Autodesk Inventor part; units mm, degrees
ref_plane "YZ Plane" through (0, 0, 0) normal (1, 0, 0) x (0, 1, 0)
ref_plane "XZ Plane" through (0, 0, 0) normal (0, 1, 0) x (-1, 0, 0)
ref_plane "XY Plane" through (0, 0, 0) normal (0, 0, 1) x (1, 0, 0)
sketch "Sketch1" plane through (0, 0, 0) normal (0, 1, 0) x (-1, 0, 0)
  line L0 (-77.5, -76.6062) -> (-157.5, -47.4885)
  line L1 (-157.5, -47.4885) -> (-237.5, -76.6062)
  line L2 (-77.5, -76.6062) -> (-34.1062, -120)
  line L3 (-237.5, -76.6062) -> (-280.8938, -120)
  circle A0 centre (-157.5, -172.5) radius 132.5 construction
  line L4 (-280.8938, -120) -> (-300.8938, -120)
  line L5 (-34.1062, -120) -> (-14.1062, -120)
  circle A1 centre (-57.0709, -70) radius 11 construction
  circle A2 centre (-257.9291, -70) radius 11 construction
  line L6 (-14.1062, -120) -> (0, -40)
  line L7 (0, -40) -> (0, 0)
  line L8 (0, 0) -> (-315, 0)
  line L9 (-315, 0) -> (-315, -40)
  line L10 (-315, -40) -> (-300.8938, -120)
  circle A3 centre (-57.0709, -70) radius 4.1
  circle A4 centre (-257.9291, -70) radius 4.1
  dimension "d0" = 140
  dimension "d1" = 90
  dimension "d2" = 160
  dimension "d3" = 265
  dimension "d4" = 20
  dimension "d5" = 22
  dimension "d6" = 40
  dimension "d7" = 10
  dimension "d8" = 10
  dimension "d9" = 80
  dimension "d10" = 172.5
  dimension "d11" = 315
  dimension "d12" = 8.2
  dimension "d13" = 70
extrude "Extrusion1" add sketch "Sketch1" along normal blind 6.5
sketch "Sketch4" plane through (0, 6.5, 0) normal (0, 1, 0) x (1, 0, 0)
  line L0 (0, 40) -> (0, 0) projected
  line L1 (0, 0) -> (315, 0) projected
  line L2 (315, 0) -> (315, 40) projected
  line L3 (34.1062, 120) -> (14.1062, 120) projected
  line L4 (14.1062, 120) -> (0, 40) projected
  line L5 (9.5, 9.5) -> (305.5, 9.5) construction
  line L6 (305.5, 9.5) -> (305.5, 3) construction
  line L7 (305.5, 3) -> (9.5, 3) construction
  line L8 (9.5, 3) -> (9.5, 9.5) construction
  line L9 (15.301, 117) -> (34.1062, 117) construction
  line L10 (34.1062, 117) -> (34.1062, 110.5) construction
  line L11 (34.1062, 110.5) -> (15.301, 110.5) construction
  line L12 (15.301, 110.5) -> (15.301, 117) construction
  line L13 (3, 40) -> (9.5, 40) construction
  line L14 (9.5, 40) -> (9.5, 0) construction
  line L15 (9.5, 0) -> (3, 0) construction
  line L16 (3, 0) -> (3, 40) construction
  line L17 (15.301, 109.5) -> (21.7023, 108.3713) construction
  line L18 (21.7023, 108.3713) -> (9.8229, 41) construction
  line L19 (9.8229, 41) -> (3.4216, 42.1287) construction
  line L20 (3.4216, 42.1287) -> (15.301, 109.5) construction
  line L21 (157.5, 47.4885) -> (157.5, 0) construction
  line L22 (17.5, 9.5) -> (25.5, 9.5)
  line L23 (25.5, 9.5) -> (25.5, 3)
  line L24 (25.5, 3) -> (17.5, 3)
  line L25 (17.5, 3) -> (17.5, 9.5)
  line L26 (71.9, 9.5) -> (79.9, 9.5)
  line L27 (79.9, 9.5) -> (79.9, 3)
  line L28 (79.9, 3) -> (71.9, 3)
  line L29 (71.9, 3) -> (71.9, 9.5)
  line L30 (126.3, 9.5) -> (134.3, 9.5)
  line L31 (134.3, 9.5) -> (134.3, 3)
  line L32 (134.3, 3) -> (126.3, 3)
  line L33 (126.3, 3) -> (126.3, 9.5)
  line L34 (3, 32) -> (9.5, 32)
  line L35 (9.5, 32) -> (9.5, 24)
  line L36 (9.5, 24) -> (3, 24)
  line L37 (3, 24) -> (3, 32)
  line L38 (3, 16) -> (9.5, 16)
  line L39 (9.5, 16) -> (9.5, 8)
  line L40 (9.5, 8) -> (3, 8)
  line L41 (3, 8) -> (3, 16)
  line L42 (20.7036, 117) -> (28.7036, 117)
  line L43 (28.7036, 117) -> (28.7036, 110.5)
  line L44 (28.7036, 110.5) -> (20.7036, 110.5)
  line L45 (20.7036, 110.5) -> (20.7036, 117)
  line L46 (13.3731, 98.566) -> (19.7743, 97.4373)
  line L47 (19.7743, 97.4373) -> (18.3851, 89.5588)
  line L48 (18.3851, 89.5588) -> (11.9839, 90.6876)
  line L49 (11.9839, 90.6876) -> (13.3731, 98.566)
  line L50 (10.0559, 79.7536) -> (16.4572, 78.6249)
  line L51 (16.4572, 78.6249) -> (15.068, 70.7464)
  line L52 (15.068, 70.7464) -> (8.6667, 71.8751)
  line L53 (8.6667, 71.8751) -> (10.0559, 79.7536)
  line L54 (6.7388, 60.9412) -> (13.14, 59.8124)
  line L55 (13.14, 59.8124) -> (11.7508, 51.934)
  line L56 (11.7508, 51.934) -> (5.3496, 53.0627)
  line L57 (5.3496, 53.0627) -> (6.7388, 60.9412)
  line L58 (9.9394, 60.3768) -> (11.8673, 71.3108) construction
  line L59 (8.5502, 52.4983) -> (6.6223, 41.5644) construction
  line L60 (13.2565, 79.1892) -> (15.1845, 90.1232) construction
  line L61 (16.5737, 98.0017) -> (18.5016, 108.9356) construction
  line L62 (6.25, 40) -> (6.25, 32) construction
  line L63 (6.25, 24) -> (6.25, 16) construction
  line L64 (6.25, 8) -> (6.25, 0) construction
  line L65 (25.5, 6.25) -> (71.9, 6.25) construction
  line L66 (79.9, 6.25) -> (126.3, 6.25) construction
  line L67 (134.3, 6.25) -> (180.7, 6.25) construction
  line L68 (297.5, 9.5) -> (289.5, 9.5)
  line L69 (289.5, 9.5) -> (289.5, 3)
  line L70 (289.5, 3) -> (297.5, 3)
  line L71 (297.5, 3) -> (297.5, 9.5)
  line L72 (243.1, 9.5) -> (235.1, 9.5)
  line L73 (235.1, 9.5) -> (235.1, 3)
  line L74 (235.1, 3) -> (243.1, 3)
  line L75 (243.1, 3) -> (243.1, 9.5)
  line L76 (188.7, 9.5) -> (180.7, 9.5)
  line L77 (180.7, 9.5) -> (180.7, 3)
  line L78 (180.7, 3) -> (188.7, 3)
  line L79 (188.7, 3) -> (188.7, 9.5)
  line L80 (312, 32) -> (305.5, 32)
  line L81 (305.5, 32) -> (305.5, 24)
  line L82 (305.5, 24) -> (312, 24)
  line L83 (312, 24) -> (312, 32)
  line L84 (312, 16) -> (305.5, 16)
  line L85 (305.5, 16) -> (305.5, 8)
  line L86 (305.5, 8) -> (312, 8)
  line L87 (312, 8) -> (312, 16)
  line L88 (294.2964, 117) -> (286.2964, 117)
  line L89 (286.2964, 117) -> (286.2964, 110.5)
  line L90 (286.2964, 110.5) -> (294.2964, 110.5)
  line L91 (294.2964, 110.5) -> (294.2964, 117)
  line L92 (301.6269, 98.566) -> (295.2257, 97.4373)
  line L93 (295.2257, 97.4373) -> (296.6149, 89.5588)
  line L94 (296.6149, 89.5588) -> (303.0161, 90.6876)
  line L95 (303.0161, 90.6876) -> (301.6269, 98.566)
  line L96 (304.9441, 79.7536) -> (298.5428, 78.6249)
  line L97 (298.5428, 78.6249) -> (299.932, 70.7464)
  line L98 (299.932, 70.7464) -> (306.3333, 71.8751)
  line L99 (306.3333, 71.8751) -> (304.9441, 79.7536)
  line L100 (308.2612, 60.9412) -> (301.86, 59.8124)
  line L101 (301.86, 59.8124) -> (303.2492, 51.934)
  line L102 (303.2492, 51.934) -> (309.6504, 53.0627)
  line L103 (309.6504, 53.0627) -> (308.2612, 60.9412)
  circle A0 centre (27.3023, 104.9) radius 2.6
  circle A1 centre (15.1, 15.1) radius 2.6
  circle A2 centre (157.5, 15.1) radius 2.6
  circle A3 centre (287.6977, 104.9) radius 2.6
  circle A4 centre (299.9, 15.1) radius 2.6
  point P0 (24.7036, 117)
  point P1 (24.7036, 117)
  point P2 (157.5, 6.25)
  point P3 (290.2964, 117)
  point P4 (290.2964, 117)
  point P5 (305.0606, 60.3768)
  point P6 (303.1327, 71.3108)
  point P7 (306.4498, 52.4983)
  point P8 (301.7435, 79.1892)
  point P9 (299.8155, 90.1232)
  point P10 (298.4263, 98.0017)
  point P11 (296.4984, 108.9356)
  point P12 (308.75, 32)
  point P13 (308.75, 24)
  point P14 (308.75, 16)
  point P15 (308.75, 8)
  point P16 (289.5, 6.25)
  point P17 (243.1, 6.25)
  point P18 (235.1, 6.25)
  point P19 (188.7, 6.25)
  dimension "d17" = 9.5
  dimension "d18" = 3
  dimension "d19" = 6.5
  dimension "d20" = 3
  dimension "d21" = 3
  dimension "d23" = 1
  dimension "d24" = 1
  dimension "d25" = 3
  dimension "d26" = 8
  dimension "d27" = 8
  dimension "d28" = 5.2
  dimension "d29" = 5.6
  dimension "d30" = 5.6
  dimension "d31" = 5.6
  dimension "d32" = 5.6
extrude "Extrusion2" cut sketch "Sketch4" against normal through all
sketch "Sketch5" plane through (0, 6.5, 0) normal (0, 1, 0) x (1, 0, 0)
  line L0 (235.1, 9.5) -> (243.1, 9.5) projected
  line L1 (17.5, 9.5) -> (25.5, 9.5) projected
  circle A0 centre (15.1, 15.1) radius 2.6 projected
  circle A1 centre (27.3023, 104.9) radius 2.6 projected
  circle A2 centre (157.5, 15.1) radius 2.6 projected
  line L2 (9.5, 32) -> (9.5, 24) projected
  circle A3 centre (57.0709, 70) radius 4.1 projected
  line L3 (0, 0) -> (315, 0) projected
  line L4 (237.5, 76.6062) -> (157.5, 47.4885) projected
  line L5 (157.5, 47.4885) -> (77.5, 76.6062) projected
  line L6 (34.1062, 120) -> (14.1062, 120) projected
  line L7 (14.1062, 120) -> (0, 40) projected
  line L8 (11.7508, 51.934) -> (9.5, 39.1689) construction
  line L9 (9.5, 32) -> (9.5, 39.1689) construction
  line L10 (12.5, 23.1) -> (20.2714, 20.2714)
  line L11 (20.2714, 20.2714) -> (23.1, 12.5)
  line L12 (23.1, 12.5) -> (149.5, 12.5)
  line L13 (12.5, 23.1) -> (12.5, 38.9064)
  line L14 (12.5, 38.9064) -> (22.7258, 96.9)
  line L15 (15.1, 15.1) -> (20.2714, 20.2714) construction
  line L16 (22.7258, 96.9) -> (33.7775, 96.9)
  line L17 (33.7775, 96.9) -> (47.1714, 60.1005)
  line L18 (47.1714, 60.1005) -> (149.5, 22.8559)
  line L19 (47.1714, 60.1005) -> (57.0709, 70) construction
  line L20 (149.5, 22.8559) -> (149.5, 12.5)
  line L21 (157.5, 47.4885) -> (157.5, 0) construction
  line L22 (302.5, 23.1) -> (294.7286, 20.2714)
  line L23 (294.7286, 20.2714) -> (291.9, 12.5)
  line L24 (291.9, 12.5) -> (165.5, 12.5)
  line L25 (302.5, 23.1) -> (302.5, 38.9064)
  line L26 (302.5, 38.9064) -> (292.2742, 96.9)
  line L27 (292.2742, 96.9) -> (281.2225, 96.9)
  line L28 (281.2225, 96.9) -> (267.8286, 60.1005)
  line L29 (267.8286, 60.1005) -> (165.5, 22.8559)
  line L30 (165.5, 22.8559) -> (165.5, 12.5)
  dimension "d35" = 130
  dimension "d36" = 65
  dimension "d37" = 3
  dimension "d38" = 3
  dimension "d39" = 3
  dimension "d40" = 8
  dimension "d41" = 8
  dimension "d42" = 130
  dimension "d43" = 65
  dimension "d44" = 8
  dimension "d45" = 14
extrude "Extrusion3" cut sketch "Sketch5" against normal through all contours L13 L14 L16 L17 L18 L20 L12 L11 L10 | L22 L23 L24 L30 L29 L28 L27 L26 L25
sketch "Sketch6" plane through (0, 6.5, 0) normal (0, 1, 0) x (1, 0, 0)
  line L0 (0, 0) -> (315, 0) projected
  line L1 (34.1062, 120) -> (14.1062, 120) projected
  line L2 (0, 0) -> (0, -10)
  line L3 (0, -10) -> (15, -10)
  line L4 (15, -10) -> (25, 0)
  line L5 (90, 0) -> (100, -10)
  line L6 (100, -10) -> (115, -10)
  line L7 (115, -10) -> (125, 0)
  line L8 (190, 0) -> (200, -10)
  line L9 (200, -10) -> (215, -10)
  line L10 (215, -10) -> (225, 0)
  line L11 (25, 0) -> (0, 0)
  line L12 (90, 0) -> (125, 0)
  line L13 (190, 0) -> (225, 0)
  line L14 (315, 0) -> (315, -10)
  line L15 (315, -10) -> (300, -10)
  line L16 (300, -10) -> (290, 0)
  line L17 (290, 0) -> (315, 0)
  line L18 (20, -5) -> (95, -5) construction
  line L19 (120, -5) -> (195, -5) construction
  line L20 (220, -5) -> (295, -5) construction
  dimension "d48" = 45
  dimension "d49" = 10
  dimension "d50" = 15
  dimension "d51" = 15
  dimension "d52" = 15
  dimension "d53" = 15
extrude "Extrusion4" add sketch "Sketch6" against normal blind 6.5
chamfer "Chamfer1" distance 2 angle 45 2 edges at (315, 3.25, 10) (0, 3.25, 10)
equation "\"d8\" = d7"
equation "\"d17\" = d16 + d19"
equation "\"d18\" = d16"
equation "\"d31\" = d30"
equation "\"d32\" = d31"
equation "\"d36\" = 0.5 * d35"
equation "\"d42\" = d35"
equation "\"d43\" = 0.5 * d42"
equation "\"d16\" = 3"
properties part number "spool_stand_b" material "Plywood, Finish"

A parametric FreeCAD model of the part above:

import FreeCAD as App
import Part
import Sketcher
from FreeCAD import Vector
Q = App.Units.Quantity


def edges_at(feature, points):
    """Names of the edges that pass closest to the given points."""
    edges = feature.Shape.Edges
    near = lambda p: min(range(len(edges)), key=lambda i: edges[i].distToShape(Part.Vertex(*p))[0])
    return sorted({f"Edge{near(p) + 1}" for p in points})


def add_polygon(sketch, points):
    """Adds a closed chain of lines whose ends are joined by coincident constraints."""
    first, n = sketch.GeometryCount, len(points)
    for a, b in zip(points, points[1:] + points[:1]):
        sketch.addGeometry(Part.LineSegment(App.Vector(*a, 0), App.Vector(*b, 0)), False)
    for i in range(n):
        sketch.addConstraint(Sketcher.Constraint("Coincident", first + i, 2, first + (i + 1) % n, 1))

doc = App.newDocument("Part")
params = doc.addObject("Spreadsheet::Sheet", "Params")
for row, (alias, value) in enumerate([
    ("sketch1_diameter", "8.2 mm"),
    ("sketch1_width", "20 mm"),
    ("sketch1_width2", "315 mm"),
    ("sketch1_height", "40 mm"),
    ("pad1_length", "6.5 mm"),
    ("sketch2_diameter", "5.2 mm"),
    ("sketch2_width", "8 mm"),
    ("sketch2_length", "8 mm"),
    ("sketch2_width2", "6.5 mm"),
    ("sketch2_length2", "6.5 mm"),
    ("sketch3_width", "126.4 mm"),
    ("sketch4_width", "15 mm"),
    ("sketch4_height", "10 mm"),
    ("pad2_length", "6.5 mm"),
    ("chamfer_size", "2 mm"),
], start=1):
    params.set(f"A{row}", alias)
    params.set(f"B{row}", "=" + value)
    params.setAlias(f"B{row}", alias)

body = doc.addObject("PartDesign::Body", "Body")

# Sketch on XZ plane
sketch1 = doc.addObject("Sketcher::SketchObject", "Sketch")
body.addObject(sketch1)
sketch1.AttachmentSupport = (doc.XZ_Plane, [""])
sketch1.MapMode = "FlatFace"
add_polygon(sketch1, [(157.5, -47.5), (77.5, -76.6), (34.1, -120), (14.1, -120), (0, -40), (0, 0), (315, 0), (315, -40), (300.9, -120), (280.9, -120), (237.5, -76.6)])  # lines 0-10
sketch1.addGeometry(Part.Circle(Vector(257.9, -70, 0), Vector(0, 0, 1), 4.1), False)  # 11
sketch1.addGeometry(Part.Circle(Vector(57.1, -70, 0), Vector(0, 0, 1), 4.1), False)  # 12
sketch1.addConstraint(Sketcher.Constraint("Horizontal", 2))
sketch1.addConstraint(Sketcher.Constraint("Vertical", 4))
sketch1.addConstraint(Sketcher.Constraint("Horizontal", 5))
sketch1.addConstraint(Sketcher.Constraint("Vertical", 6))
sketch1.addConstraint(Sketcher.Constraint("Horizontal", 8))
sketch1.addConstraint(Sketcher.Constraint("Coincident", 4, 2, -1, 1))
sketch1.addConstraint(Sketcher.Constraint("Equal", 11, 12))
sketch1.addConstraint(Sketcher.Constraint("Perpendicular", 1, 9))
sketch1.addConstraint(Sketcher.Constraint("Horizontal", 11, 3, 12, 3))
sketch1.addConstraint(Sketcher.Constraint("Horizontal", 3, 2, 6, 2))
sketch1.addConstraint(Sketcher.Constraint("Horizontal", 2, 2, 7, 2))
sketch1.addConstraint(Sketcher.Constraint("Horizontal", 0, 2, 9, 2))
sketch1.addConstraint(Sketcher.Constraint("Equal", 2, 8))
sketch1.addConstraint(Sketcher.Constraint("Equal", 3, 7))
sketch1.addConstraint(Sketcher.Constraint("Equal", 1, 9))
sketch1.addConstraint(Sketcher.Constraint("Equal", 0, 10))
sketch1.addConstraint(Sketcher.Constraint("Diameter", 11, Q("8.2 mm")))
sketch1.addConstraint(Sketcher.Constraint("DistanceX", 2, 2, 2, 1, Q("20 mm")))
sketch1.addConstraint(Sketcher.Constraint("DistanceX", 5, 1, 5, 2, Q("315 mm")))
sketch1.addConstraint(Sketcher.Constraint("DistanceY", 4, 1, 4, 2, Q("40 mm")))
sketch1.addConstraint(Sketcher.Constraint("Angle", 0, Q("-160 deg")))
sketch1.addConstraint(Sketcher.Constraint("DistanceY", 11, 3, -1, 1, Q("70 mm")))
sketch1.addConstraint(Sketcher.Constraint("DistanceY", 2, 2, 3, 2, Q("80 mm")))
sketch1.addConstraint(Sketcher.Constraint("DistanceX", 0, 2, 10, 2, Q("80 mm")))
sketch1.addConstraint(Sketcher.Constraint("Angle", 3, Q("100 deg")))
sketch1.addConstraint(Sketcher.Constraint("DistanceX", -1, 1, 11, 3, Q("257.929 mm")))
sketch1.addConstraint(Sketcher.Constraint("DistanceX", -1, 1, 12, 3, Q("57.071 mm")))
sketch1.setExpression("Constraints[27]", "Params.sketch1_diameter")
sketch1.setExpression("Constraints[28]", "Params.sketch1_width")
sketch1.setExpression("Constraints[29]", "Params.sketch1_width2")
sketch1.setExpression("Constraints[30]", "Params.sketch1_height")
pad1 = doc.addObject("PartDesign::Pad", "Pad")
body.addObject(pad1)
pad1.Profile = sketch1
pad1.setExpression("Length", "Params.pad1_length")
pad1.Reversed = True

# Sketch on XZ plane
sketch2 = doc.addObject("Sketcher::SketchObject", "Sketch001")
body.addObject(sketch2)
sketch2.AttachmentSupport = (doc.XZ_Plane, [""])
sketch2.MapMode = "FlatFace"
sketch2.AttachmentOffset = App.Placement(Vector(0, 0, -6.5), App.Rotation())
add_polygon(sketch2, [(25.5, -9.5), (17.5, -9.5), (17.5, -3), (25.5, -3)])  # lines 0-3
add_polygon(sketch2, [(79.9, -9.5), (71.9, -9.5), (71.9, -3), (79.9, -3)])  # lines 4-7
add_polygon(sketch2, [(134.3, -9.5), (126.3, -9.5), (126.3, -3), (134.3, -3)])  # lines 8-11
add_polygon(sketch2, [(9.5, -32), (3, -32), (3, -24), (9.5, -24)])  # lines 12-15
add_polygon(sketch2, [(9.5, -16), (3, -16), (3, -8), (9.5, -8)])  # lines 16-19
add_polygon(sketch2, [(28.7, -117), (20.7, -117), (20.7, -110.5), (28.7, -110.5)])  # lines 20-23
add_polygon(sketch2, [(19.8, -97.4), (13.4, -98.6), (12, -90.7), (18.4, -89.6)])  # lines 24-27
add_polygon(sketch2, [(16.5, -78.6), (10.1, -79.8), (8.7, -71.9), (15.1, -70.7)])  # lines 28-31
add_polygon(sketch2, [(13.1, -59.8), (6.7, -60.9), (5.3, -53.1), (11.8, -51.9)])  # lines 32-35
add_polygon(sketch2, [(297.5, -3), (297.5, -9.5), (289.5, -9.5), (289.5, -3)])  # lines 36-39
add_polygon(sketch2, [(243.1, -3), (243.1, -9.5), (235.1, -9.5), (235.1, -3)])  # lines 40-43
add_polygon(sketch2, [(188.7, -3), (188.7, -9.5), (180.7, -9.5), (180.7, -3)])  # lines 44-47
add_polygon(sketch2, [(312, -24), (312, -32), (305.5, -32), (305.5, -24)])  # lines 48-51
add_polygon(sketch2, [(312, -8), (312, -16), (305.5, -16), (305.5, -8)])  # lines 52-55
add_polygon(sketch2, [(294.3, -110.5), (294.3, -117), (286.3, -117), (286.3, -110.5)])  # lines 56-59
add_polygon(sketch2, [(303, -90.7), (301.6, -98.6), (295.2, -97.4), (296.6, -89.6)])  # lines 60-63
add_polygon(sketch2, [(306.3, -71.9), (304.9, -79.8), (298.5, -78.6), (299.9, -70.7)])  # lines 64-67
add_polygon(sketch2, [(309.7, -53.1), (308.3, -60.9), (301.9, -59.8), (303.2, -51.9)])  # lines 68-71
sketch2.addGeometry(Part.Circle(Vector(27.3, -104.9, 0), Vector(0, 0, 1), 2.6), False)  # 72
sketch2.addGeometry(Part.Circle(Vector(15.1, -15.1, 0), Vector(0, 0, 1), 2.6), False)  # 73
sketch2.addGeometry(Part.Circle(Vector(157.5, -15.1, 0), Vector(0, 0, 1), 2.6), False)  # 74
sketch2.addGeometry(Part.Circle(Vector(287.7, -104.9, 0), Vector(0, 0, 1), 2.6), False)  # 75
sketch2.addGeometry(Part.Circle(Vector(299.9, -15.1, 0), Vector(0, 0, 1), 2.6), False)  # 76
sketch2.addConstraint(Sketcher.Constraint("Horizontal", 0))
sketch2.addConstraint(Sketcher.Constraint("Vertical", 1))
sketch2.addConstraint(Sketcher.Constraint("Horizontal", 2))
sketch2.addConstraint(Sketcher.Constraint("Vertical", 3))
sketch2.addConstraint(Sketcher.Constraint("Horizontal", 4))
sketch2.addConstraint(Sketcher.Constraint("Vertical", 5))
sketch2.addConstraint(Sketcher.Constraint("Horizontal", 6))
sketch2.addConstraint(Sketcher.Constraint("Vertical", 7))
sketch2.addConstraint(Sketcher.Constraint("Horizontal", 8))
sketch2.addConstraint(Sketcher.Constraint("Vertical", 9))
sketch2.addConstraint(Sketcher.Constraint("Horizontal", 10))
sketch2.addConstraint(Sketcher.Constraint("Vertical", 11))
sketch2.addConstraint(Sketcher.Constraint("Horizontal", 12))
sketch2.addConstraint(Sketcher.Constraint("Vertical", 13))
sketch2.addConstraint(Sketcher.Constraint("Horizontal", 14))
sketch2.addConstraint(Sketcher.Constraint("Vertical", 15))
sketch2.addConstraint(Sketcher.Constraint("Horizontal", 16))
sketch2.addConstraint(Sketcher.Constraint("Vertical", 17))
sketch2.addConstraint(Sketcher.Constraint("Horizontal", 18))
sketch2.addConstraint(Sketcher.Constraint("Vertical", 19))
sketch2.addConstraint(Sketcher.Constraint("Horizontal", 20))
sketch2.addConstraint(Sketcher.Constraint("Vertical", 21))
sketch2.addConstraint(Sketcher.Constraint("Horizontal", 22))
sketch2.addConstraint(Sketcher.Constraint("Vertical", 23))
sketch2.addConstraint(Sketcher.Constraint("Vertical", 36))
sketch2.addConstraint(Sketcher.Constraint("Horizontal", 37))
sketch2.addConstraint(Sketcher.Constraint("Vertical", 38))
sketch2.addConstraint(Sketcher.Constraint("Horizontal", 39))
sketch2.addConstraint(Sketcher.Constraint("Vertical", 40))
sketch2.addConstraint(Sketcher.Constraint("Horizontal", 41))
sketch2.addConstraint(Sketcher.Constraint("Vertical", 42))
sketch2.addConstraint(Sketcher.Constraint("Horizontal", 43))
sketch2.addConstraint(Sketcher.Constraint("Vertical", 44))
sketch2.addConstraint(Sketcher.Constraint("Horizontal", 45))
sketch2.addConstraint(Sketcher.Constraint("Vertical", 46))
sketch2.addConstraint(Sketcher.Constraint("Horizontal", 47))
sketch2.addConstraint(Sketcher.Constraint("Vertical", 48))
sketch2.addConstraint(Sketcher.Constraint("Horizontal", 49))
sketch2.addConstraint(Sketcher.Constraint("Vertical", 50))
sketch2.addConstraint(Sketcher.Constraint("Horizontal", 51))
sketch2.addConstraint(Sketcher.Constraint("Vertical", 52))
sketch2.addConstraint(Sketcher.Constraint("Horizontal", 53))
sketch2.addConstraint(Sketcher.Constraint("Vertical", 54))
sketch2.addConstraint(Sketcher.Constraint("Horizontal", 55))
sketch2.addConstraint(Sketcher.Constraint("Vertical", 56))
sketch2.addConstraint(Sketcher.Constraint("Horizontal", 57))
sketch2.addConstraint(Sketcher.Constraint("Vertical", 58))
sketch2.addConstraint(Sketcher.Constraint("Horizontal", 59))
sketch2.addConstraint(Sketcher.Constraint("Equal", 72, 73))
sketch2.addConstraint(Sketcher.Constraint("Equal", 73, 74))
sketch2.addConstraint(Sketcher.Constraint("Equal", 74, 75))
sketch2.addConstraint(Sketcher.Constraint("Equal", 75, 76))
sketch2.addConstraint(Sketcher.Constraint("Perpendicular", 24, 25))
sketch2.addConstraint(Sketcher.Constraint("Perpendicular", 25, 26))
sketch2.addConstraint(Sketcher.Constraint("Perpendicular", 26, 27))
sketch2.addConstraint(Sketcher.Constraint("Perpendicular", 27, 28))
sketch2.addConstraint(Sketcher.Constraint("Perpendicular", 28, 29))
sketch2.addConstraint(Sketcher.Constraint("Perpendicular", 29, 30))
sketch2.addConstraint(Sketcher.Constraint("Perpendicular", 30, 31))
sketch2.addConstraint(Sketcher.Constraint("Perpendicular", 31, 32))
sketch2.addConstraint(Sketcher.Constraint("Perpendicular", 32, 33))
sketch2.addConstraint(Sketcher.Constraint("Perpendicular", 33, 34))
sketch2.addConstraint(Sketcher.Constraint("Perpendicular", 34, 35))
sketch2.addConstraint(Sketcher.Constraint("Perpendicular", 60, 61))
sketch2.addConstraint(Sketcher.Constraint("Perpendicular", 61, 62))
sketch2.addConstraint(Sketcher.Constraint("Perpendicular", 62, 63))
sketch2.addConstraint(Sketcher.Constraint("Perpendicular", 63, 64))
sketch2.addConstraint(Sketcher.Constraint("Perpendicular", 64, 65))
sketch2.addConstraint(Sketcher.Constraint("Perpendicular", 65, 66))
sketch2.addConstraint(Sketcher.Constraint("Perpendicular", 66, 67))
sketch2.addConstraint(Sketcher.Constraint("Perpendicular", 67, 68))
sketch2.addConstraint(Sketcher.Constraint("Perpendicular", 68, 69))
sketch2.addConstraint(Sketcher.Constraint("Perpendicular", 69, 70))
sketch2.addConstraint(Sketcher.Constraint("Perpendicular", 70, 71))
sketch2.addConstraint(Sketcher.Constraint("Horizontal", 73, 3, 74, 3))
sketch2.addConstraint(Sketcher.Constraint("Horizontal", 72, 3, 75, 3))
sketch2.addConstraint(Sketcher.Constraint("Horizontal", 74, 3, 76, 3))
sketch2.addConstraint(Sketcher.Constraint("Horizontal", 3, 2, 4, 2))
sketch2.addConstraint(Sketcher.Constraint("Horizontal", 2, 2, 5, 2))
sketch2.addConstraint(Sketcher.Constraint("Horizontal", 7, 2, 8, 2))
sketch2.addConstraint(Sketcher.Constraint("Horizontal", 6, 2, 9, 2))
sketch2.addConstraint(Sketcher.Constraint("Horizontal", 11, 2, 36, 2))
sketch2.addConstraint(Sketcher.Constraint("Horizontal", 10, 2, 38, 2))
sketch2.addConstraint(Sketcher.Constraint("Horizontal", 37, 2, 40, 2))
sketch2.addConstraint(Sketcher.Constraint("Horizontal", 39, 2, 42, 2))
sketch2.addConstraint(Sketcher.Constraint("Horizontal", 41, 2, 44, 2))
sketch2.addConstraint(Sketcher.Constraint("Horizontal", 43, 2, 46, 2))
sketch2.addConstraint(Sketcher.Constraint("Horizontal", 15, 2, 48, 2))
sketch2.addConstraint(Sketcher.Constraint("Horizontal", 14, 2, 50, 2))
sketch2.addConstraint(Sketcher.Constraint("Horizontal", 19, 2, 52, 2))
sketch2.addConstraint(Sketcher.Constraint("Horizontal", 18, 2, 54, 2))
sketch2.addConstraint(Sketcher.Constraint("Horizontal", 23, 2, 56, 2))
sketch2.addConstraint(Sketcher.Constraint("Horizontal", 22, 2, 58, 2))
sketch2.addConstraint(Sketcher.Constraint("Horizontal", 24, 2, 60, 2))
sketch2.addConstraint(Sketcher.Constraint("Horizontal", 27, 2, 61, 2))
sketch2.addConstraint(Sketcher.Constraint("Horizontal", 26, 2, 62, 2))
sketch2.addConstraint(Sketcher.Constraint("Horizontal", 28, 2, 64, 2))
sketch2.addConstraint(Sketcher.Constraint("Horizontal", 31, 2, 65, 2))
sketch2.addConstraint(Sketcher.Constraint("Horizontal", 30, 2, 66, 2))
sketch2.addConstraint(Sketcher.Constraint("Horizontal", 32, 2, 68, 2))
sketch2.addConstraint(Sketcher.Constraint("Horizontal", 35, 2, 69, 2))
sketch2.addConstraint(Sketcher.Constraint("Horizontal", 34, 2, 70, 2))
sketch2.addConstraint(Sketcher.Constraint("Vertical", 13, 2, 16, 2))
sketch2.addConstraint(Sketcher.Constraint("Vertical", 15, 2, 18, 2))
sketch2.addConstraint(Sketcher.Constraint("Vertical", 51, 2, 52, 2))
sketch2.addConstraint(Sketcher.Constraint("Vertical", 50, 2, 53, 2))
sketch2.addConstraint(Sketcher.Constraint("Equal", 2, 4))
sketch2.addConstraint(Sketcher.Constraint("Equal", 6, 8))
sketch2.addConstraint(Sketcher.Constraint("Equal", 10, 20))
sketch2.addConstraint(Sketcher.Constraint("Equal", 22, 37))
sketch2.addConstraint(Sketcher.Constraint("Equal", 39, 41))
sketch2.addConstraint(Sketcher.Constraint("Equal", 43, 45))
sketch2.addConstraint(Sketcher.Constraint("Equal", 18, 49))
sketch2.addConstraint(Sketcher.Constraint("Equal", 47, 57))
sketch2.addConstraint(Sketcher.Constraint("Equal", 55, 1))
sketch2.addConstraint(Sketcher.Constraint("Equal", 59, 13))
sketch2.addConstraint(Sketcher.Constraint("Equal", 15, 17))
sketch2.addConstraint(Sketcher.Constraint("Equal", 11, 21))
sketch2.addConstraint(Sketcher.Constraint("Equal", 26, 28))
sketch2.addConstraint(Sketcher.Constraint("Equal", 27, 29))
sketch2.addConstraint(Sketcher.Constraint("Equal", 30, 32))
sketch2.addConstraint(Sketcher.Constraint("Equal", 31, 33))
sketch2.addConstraint(Sketcher.Constraint("Equal", 35, 60))
sketch2.addConstraint(Sketcher.Constraint("Diameter", 72, Q("5.2 mm")))
sketch2.addConstraint(Sketcher.Constraint("DistanceX", 0, 2, 0, 1, Q("8 mm")))
sketch2.addConstraint(Sketcher.Constraint("Distance", 25, Q("8 mm")))
sketch2.addConstraint(Sketcher.Constraint("DistanceX", 12, 2, 12, 1, Q("6.5 mm")))
sketch2.addConstraint(Sketcher.Constraint("DistanceY", 1, 2, -1, 1, Q("3 mm")))
sketch2.addConstraint(Sketcher.Constraint("DistanceX", -1, 1, 12, 2, Q("3 mm")))
sketch2.addConstraint(Sketcher.Constraint("DistanceY", 17, 2, -1, 1, Q("8 mm")))
sketch2.addConstraint(Sketcher.Constraint("Distance", 24, Q("6.5 mm")))
sketch2.addConstraint(Sketcher.Constraint("Angle", 24, Q("-170 deg")))
sketch2.addConstraint(Sketcher.Constraint("DistanceY", 12, 2, -1, 1, Q("32 mm")))
sketch2.addConstraint(Sketcher.Constraint("DistanceY", 20, 2, -1, 1, Q("117 mm")))
sketch2.addConstraint(Sketcher.Constraint("DistanceX", -1, 1, 48, 2, Q("312 mm")))
sketch2.addConstraint(Sketcher.Constraint("DistanceY", 72, 3, -1, 1, Q("104.9 mm")))
sketch2.addConstraint(Sketcher.Constraint("DistanceX", -1, 1, 73, 3, Q("15.1 mm")))
sketch2.addConstraint(Sketcher.Constraint("DistanceY", 73, 3, -1, 1, Q("15.1 mm")))
sketch2.addConstraint(Sketcher.Constraint("DistanceX", -1, 1, 74, 3, Q("157.5 mm")))
sketch2.addConstraint(Sketcher.Constraint("DistanceX", -1, 1, 76, 3, Q("299.9 mm")))
sketch2.addConstraint(Sketcher.Constraint("DistanceX", -1, 1, 0, 2, Q("17.5 mm")))
sketch2.addConstraint(Sketcher.Constraint("DistanceX", -1, 1, 4, 2, Q("71.9 mm")))
sketch2.addConstraint(Sketcher.Constraint("DistanceX", -1, 1, 8, 2, Q("126.3 mm")))
sketch2.addConstraint(Sketcher.Constraint("DistanceX", -1, 1, 36, 2, Q("297.5 mm")))
sketch2.addConstraint(Sketcher.Constraint("DistanceX", -1, 1, 40, 2, Q("243.1 mm")))
sketch2.addConstraint(Sketcher.Constraint("DistanceX", -1, 1, 44, 2, Q("188.7 mm")))
sketch2.addConstraint(Sketcher.Constraint("DistanceX", -1, 1, 35, 2, Q("13.14 mm")))
sketch2.addConstraint(Sketcher.Constraint("DistanceX", -1, 1, 69, 2, Q("301.86 mm")))
sketch2.addConstraint(Sketcher.Constraint("DistanceX", -1, 1, 24, 2, Q("13.373 mm")))
sketch2.addConstraint(Sketcher.Constraint("DistanceY", 24, 2, -1, 1, Q("98.566 mm")))
sketch2.addConstraint(Sketcher.Constraint("DistanceX", -1, 1, 28, 2, Q("10.056 mm")))
sketch2.addConstraint(Sketcher.Constraint("DistanceY", 29, 2, -1, 1, Q("71.875 mm")))
sketch2.addConstraint(Sketcher.Constraint("DistanceY", 34, 2, -1, 1, Q("51.934 mm")))
sketch2.addConstraint(Sketcher.Constraint("DistanceX", -1, 1, 60, 2, Q("301.627 mm")))
sketch2.addConstraint(Sketcher.Constraint("DistanceX", -1, 1, 64, 2, Q("304.944 mm")))
sketch2.addConstraint(Sketcher.Constraint("DistanceX", -1, 1, 72, 3, Q("27.3023 mm")))
sketch2.addConstraint(Sketcher.Constraint("DistanceX", -1, 1, 75, 3, Q("287.6977 mm")))
sketch2.addConstraint(Sketcher.Constraint("DistanceX", -1, 1, 20, 2, Q("20.7036 mm")))
sketch2.addConstraint(Sketcher.Constraint("DistanceX", -1, 1, 56, 2, Q("294.2964 mm")))
sketch2.setExpression("Constraints[195]", "Params.sketch2_diameter")
sketch2.setExpression("Constraints[196]", "Params.sketch2_width")
sketch2.setExpression("Constraints[197]", "Params.sketch2_length")
sketch2.setExpression("Constraints[198]", "Params.sketch2_width2")
sketch2.setExpression("Constraints[202]", "Params.sketch2_length2")
pocket1 = doc.addObject("PartDesign::Pocket", "Pocket")
body.addObject(pocket1)
pocket1.Profile = sketch2
pocket1.Type = "ThroughAll"
pocket1.Reversed = True

# Sketch on XZ plane
sketch3 = doc.addObject("Sketcher::SketchObject", "Sketch002")
body.addObject(sketch3)
sketch3.AttachmentSupport = (doc.XZ_Plane, [""])
sketch3.MapMode = "FlatFace"
sketch3.AttachmentOffset = App.Placement(Vector(0, 0, -6.5), App.Rotation())
add_polygon(sketch3, [(12, -39), (12, -23), (20, -20), (23, -12), (150, -12), (150, -23), (47, -60), (34, -97), (23, -97)])  # lines 0-8
add_polygon(sketch3, [(295, -20), (302, -23), (302, -39), (292, -97), (281, -97), (268, -60), (166, -23), (166, -12), (292, -12)])  # lines 9-17
sketch3.addConstraint(Sketcher.Constraint("Vertical", 0))
sketch3.addConstraint(Sketcher.Constraint("Horizontal", 3))
sketch3.addConstraint(Sketcher.Constraint("Vertical", 4))
sketch3.addConstraint(Sketcher.Constraint("Horizontal", 7))
sketch3.addConstraint(Sketcher.Constraint("Vertical", 10))
sketch3.addConstraint(Sketcher.Constraint("Horizontal", 12))
sketch3.addConstraint(Sketcher.Constraint("Vertical", 15))
sketch3.addConstraint(Sketcher.Constraint("Horizontal", 16))
sketch3.addConstraint(Sketcher.Constraint("Parallel", 1, 5))
sketch3.addConstraint(Sketcher.Constraint("Parallel", 2, 6))
sketch3.addConstraint(Sketcher.Constraint("Perpendicular", 6, 9))
sketch3.addConstraint(Sketcher.Constraint("Perpendicular", 5, 13))
sketch3.addConstraint(Sketcher.Constraint("Parallel", 9, 14))
sketch3.addConstraint(Sketcher.Constraint("Parallel", 13, 17))
sketch3.addConstraint(Sketcher.Constraint("Horizontal", 0, 2, 9, 2))
sketch3.addConstraint(Sketcher.Constraint("Horizontal", 8, 2, 10, 2))
sketch3.addConstraint(Sketcher.Constraint("Horizontal", 7, 2, 11, 2))
sketch3.addConstraint(Sketcher.Constraint("Horizontal", 5, 2, 13, 2))
sketch3.addConstraint(Sketcher.Constraint("Horizontal", 4, 2, 14, 2))
sketch3.addConstraint(Sketcher.Constraint("Horizontal", 3, 2, 15, 2))
sketch3.addConstraint(Sketcher.Constraint("Horizontal", 1, 2, 17, 2))
sketch3.addConstraint(Sketcher.Constraint("Equal", 7, 12))
sketch3.addConstraint(Sketcher.Constraint("Equal", 3, 16))
sketch3.addConstraint(Sketcher.Constraint("Equal", 1, 2))
sketch3.addConstraint(Sketcher.Constraint("Equal", 2, 9))
sketch3.addConstraint(Sketcher.Constraint("Angle", 1, Q("20.0003 deg")))
sketch3.addConstraint(Sketcher.Constraint("Angle", 8, Q("100 deg")))
sketch3.addConstraint(Sketcher.Constraint("DistanceX", 3, 1, 3, 2, Q("126.4 mm")))
sketch3.addConstraint(Sketcher.Constraint("DistanceX", 0, 2, 3, 2, Q("137 mm")))
sketch3.addConstraint(Sketcher.Constraint("DistanceX", 4, 2, 9, 2, Q("153 mm")))
sketch3.addConstraint(Sketcher.Constraint("DistanceX", -1, 1, 0, 2, Q("12.5 mm")))
sketch3.addConstraint(Sketcher.Constraint("DistanceY", 0, 2, -1, 1, Q("23.1 mm")))
sketch3.addConstraint(Sketcher.Constraint("DistanceY", 6, 2, -1, 1, Q("96.9 mm")))
sketch3.addConstraint(Sketcher.Constraint("DistanceX", 1, 2, 5, 2, Q("26.9 mm")))
sketch3.addConstraint(Sketcher.Constraint("DistanceY", 4, 2, 4, 1, Q("10.356 mm")))
sketch3.addConstraint(Sketcher.Constraint("DistanceX", 7, 2, 7, 1, Q("11.0517 mm")))
sketch3.setExpression("Constraints[45]", "Params.sketch3_width")
pocket2 = doc.addObject("PartDesign::Pocket", "Pocket001")
body.addObject(pocket2)
pocket2.Profile = sketch3
pocket2.Type = "ThroughAll"
pocket2.Reversed = True

# Sketch on XZ plane
sketch4 = doc.addObject("Sketcher::SketchObject", "Sketch003")
body.addObject(sketch4)
sketch4.AttachmentSupport = (doc.XZ_Plane, [""])
sketch4.MapMode = "FlatFace"
sketch4.AttachmentOffset = App.Placement(Vector(0, 0, -6.5), App.Rotation())
add_polygon(sketch4, [(315, 0), (290, 0), (300, 10), (315, 10)])  # lines 0-3
add_polygon(sketch4, [(225, 0), (190, 0), (200, 10), (215, 10)])  # lines 4-7
add_polygon(sketch4, [(125, 0), (90, 0), (100, 10), (115, 10)])  # lines 8-11
add_polygon(sketch4, [(25, 0), (0, 0), (0, 10), (15, 10)])  # lines 12-15
sketch4.addConstraint(Sketcher.Constraint("Horizontal", 0))
sketch4.addConstraint(Sketcher.Constraint("Horizontal", 2))
sketch4.addConstraint(Sketcher.Constraint("Vertical", 3))
sketch4.addConstraint(Sketcher.Constraint("Horizontal", 4))
sketch4.addConstraint(Sketcher.Constraint("Horizontal", 6))
sketch4.addConstraint(Sketcher.Constraint("Horizontal", 8))
sketch4.addConstraint(Sketcher.Constraint("Horizontal", 10))
sketch4.addConstraint(Sketcher.Constraint("Horizontal", 12))
sketch4.addConstraint(Sketcher.Constraint("Vertical", 13))
sketch4.addConstraint(Sketcher.Constraint("Horizontal", 14))
sketch4.addConstraint(Sketcher.Constraint("Coincident", 12, 2, -1, 1))
sketch4.addConstraint(Sketcher.Constraint("PointOnObject", 0, 2, -1))
sketch4.addConstraint(Sketcher.Constraint("PointOnObject", 4, 2, -1))
sketch4.addConstraint(Sketcher.Constraint("PointOnObject", 8, 2, -1))
sketch4.addConstraint(Sketcher.Constraint("Parallel", 1, 5))
sketch4.addConstraint(Sketcher.Constraint("Perpendicular", 5, 7))
sketch4.addConstraint(Sketcher.Constraint("Perpendicular", 7, 9))
sketch4.addConstraint(Sketcher.Constraint("Perpendicular", 9, 11))
sketch4.addConstraint(Sketcher.Constraint("Parallel", 11, 15))
sketch4.addConstraint(Sketcher.Constraint("Horizontal", 2, 2, 5, 2))
sketch4.addConstraint(Sketcher.Constraint("Horizontal", 6, 2, 9, 2))
sketch4.addConstraint(Sketcher.Constraint("Horizontal", 10, 2, 13, 2))
sketch4.addConstraint(Sketcher.Constraint("Equal", 2, 6))
sketch4.addConstraint(Sketcher.Constraint("Equal", 4, 8))
sketch4.addConstraint(Sketcher.Constraint("Equal", 0, 12))
sketch4.addConstraint(Sketcher.Constraint("Equal", 10, 14))
sketch4.addConstraint(Sketcher.Constraint("DistanceX", 2, 1, 2, 2, Q("15 mm")))
sketch4.addConstraint(Sketcher.Constraint("DistanceY", 3, 2, 3, 1, Q("10 mm")))
sketch4.addConstraint(Sketcher.Constraint("DistanceX", -1, 1, 0, 2, Q("290 mm")))
sketch4.addConstraint(Sketcher.Constraint("DistanceX", -1, 1, 4, 2, Q("190 mm")))
sketch4.addConstraint(Sketcher.Constraint("DistanceX", -1, 1, 8, 2, Q("90 mm")))
sketch4.setExpression("Constraints[42]", "Params.sketch4_width")
sketch4.setExpression("Constraints[43]", "Params.sketch4_height")
pad2 = doc.addObject("PartDesign::Pad", "Pad001")
body.addObject(pad2)
pad2.Profile = sketch4
pad2.setExpression("Length", "Params.pad2_length")
doc.recompute()

chamfer = doc.addObject("PartDesign::Chamfer", "Chamfer")
body.addObject(chamfer)
chamfer.Base = (pad2, edges_at(pad2, [(315, 3.25, 10), (0, 3.25, 10)]))
chamfer.setExpression("Size", "Params.chamfer_size")

doc.recompute()
